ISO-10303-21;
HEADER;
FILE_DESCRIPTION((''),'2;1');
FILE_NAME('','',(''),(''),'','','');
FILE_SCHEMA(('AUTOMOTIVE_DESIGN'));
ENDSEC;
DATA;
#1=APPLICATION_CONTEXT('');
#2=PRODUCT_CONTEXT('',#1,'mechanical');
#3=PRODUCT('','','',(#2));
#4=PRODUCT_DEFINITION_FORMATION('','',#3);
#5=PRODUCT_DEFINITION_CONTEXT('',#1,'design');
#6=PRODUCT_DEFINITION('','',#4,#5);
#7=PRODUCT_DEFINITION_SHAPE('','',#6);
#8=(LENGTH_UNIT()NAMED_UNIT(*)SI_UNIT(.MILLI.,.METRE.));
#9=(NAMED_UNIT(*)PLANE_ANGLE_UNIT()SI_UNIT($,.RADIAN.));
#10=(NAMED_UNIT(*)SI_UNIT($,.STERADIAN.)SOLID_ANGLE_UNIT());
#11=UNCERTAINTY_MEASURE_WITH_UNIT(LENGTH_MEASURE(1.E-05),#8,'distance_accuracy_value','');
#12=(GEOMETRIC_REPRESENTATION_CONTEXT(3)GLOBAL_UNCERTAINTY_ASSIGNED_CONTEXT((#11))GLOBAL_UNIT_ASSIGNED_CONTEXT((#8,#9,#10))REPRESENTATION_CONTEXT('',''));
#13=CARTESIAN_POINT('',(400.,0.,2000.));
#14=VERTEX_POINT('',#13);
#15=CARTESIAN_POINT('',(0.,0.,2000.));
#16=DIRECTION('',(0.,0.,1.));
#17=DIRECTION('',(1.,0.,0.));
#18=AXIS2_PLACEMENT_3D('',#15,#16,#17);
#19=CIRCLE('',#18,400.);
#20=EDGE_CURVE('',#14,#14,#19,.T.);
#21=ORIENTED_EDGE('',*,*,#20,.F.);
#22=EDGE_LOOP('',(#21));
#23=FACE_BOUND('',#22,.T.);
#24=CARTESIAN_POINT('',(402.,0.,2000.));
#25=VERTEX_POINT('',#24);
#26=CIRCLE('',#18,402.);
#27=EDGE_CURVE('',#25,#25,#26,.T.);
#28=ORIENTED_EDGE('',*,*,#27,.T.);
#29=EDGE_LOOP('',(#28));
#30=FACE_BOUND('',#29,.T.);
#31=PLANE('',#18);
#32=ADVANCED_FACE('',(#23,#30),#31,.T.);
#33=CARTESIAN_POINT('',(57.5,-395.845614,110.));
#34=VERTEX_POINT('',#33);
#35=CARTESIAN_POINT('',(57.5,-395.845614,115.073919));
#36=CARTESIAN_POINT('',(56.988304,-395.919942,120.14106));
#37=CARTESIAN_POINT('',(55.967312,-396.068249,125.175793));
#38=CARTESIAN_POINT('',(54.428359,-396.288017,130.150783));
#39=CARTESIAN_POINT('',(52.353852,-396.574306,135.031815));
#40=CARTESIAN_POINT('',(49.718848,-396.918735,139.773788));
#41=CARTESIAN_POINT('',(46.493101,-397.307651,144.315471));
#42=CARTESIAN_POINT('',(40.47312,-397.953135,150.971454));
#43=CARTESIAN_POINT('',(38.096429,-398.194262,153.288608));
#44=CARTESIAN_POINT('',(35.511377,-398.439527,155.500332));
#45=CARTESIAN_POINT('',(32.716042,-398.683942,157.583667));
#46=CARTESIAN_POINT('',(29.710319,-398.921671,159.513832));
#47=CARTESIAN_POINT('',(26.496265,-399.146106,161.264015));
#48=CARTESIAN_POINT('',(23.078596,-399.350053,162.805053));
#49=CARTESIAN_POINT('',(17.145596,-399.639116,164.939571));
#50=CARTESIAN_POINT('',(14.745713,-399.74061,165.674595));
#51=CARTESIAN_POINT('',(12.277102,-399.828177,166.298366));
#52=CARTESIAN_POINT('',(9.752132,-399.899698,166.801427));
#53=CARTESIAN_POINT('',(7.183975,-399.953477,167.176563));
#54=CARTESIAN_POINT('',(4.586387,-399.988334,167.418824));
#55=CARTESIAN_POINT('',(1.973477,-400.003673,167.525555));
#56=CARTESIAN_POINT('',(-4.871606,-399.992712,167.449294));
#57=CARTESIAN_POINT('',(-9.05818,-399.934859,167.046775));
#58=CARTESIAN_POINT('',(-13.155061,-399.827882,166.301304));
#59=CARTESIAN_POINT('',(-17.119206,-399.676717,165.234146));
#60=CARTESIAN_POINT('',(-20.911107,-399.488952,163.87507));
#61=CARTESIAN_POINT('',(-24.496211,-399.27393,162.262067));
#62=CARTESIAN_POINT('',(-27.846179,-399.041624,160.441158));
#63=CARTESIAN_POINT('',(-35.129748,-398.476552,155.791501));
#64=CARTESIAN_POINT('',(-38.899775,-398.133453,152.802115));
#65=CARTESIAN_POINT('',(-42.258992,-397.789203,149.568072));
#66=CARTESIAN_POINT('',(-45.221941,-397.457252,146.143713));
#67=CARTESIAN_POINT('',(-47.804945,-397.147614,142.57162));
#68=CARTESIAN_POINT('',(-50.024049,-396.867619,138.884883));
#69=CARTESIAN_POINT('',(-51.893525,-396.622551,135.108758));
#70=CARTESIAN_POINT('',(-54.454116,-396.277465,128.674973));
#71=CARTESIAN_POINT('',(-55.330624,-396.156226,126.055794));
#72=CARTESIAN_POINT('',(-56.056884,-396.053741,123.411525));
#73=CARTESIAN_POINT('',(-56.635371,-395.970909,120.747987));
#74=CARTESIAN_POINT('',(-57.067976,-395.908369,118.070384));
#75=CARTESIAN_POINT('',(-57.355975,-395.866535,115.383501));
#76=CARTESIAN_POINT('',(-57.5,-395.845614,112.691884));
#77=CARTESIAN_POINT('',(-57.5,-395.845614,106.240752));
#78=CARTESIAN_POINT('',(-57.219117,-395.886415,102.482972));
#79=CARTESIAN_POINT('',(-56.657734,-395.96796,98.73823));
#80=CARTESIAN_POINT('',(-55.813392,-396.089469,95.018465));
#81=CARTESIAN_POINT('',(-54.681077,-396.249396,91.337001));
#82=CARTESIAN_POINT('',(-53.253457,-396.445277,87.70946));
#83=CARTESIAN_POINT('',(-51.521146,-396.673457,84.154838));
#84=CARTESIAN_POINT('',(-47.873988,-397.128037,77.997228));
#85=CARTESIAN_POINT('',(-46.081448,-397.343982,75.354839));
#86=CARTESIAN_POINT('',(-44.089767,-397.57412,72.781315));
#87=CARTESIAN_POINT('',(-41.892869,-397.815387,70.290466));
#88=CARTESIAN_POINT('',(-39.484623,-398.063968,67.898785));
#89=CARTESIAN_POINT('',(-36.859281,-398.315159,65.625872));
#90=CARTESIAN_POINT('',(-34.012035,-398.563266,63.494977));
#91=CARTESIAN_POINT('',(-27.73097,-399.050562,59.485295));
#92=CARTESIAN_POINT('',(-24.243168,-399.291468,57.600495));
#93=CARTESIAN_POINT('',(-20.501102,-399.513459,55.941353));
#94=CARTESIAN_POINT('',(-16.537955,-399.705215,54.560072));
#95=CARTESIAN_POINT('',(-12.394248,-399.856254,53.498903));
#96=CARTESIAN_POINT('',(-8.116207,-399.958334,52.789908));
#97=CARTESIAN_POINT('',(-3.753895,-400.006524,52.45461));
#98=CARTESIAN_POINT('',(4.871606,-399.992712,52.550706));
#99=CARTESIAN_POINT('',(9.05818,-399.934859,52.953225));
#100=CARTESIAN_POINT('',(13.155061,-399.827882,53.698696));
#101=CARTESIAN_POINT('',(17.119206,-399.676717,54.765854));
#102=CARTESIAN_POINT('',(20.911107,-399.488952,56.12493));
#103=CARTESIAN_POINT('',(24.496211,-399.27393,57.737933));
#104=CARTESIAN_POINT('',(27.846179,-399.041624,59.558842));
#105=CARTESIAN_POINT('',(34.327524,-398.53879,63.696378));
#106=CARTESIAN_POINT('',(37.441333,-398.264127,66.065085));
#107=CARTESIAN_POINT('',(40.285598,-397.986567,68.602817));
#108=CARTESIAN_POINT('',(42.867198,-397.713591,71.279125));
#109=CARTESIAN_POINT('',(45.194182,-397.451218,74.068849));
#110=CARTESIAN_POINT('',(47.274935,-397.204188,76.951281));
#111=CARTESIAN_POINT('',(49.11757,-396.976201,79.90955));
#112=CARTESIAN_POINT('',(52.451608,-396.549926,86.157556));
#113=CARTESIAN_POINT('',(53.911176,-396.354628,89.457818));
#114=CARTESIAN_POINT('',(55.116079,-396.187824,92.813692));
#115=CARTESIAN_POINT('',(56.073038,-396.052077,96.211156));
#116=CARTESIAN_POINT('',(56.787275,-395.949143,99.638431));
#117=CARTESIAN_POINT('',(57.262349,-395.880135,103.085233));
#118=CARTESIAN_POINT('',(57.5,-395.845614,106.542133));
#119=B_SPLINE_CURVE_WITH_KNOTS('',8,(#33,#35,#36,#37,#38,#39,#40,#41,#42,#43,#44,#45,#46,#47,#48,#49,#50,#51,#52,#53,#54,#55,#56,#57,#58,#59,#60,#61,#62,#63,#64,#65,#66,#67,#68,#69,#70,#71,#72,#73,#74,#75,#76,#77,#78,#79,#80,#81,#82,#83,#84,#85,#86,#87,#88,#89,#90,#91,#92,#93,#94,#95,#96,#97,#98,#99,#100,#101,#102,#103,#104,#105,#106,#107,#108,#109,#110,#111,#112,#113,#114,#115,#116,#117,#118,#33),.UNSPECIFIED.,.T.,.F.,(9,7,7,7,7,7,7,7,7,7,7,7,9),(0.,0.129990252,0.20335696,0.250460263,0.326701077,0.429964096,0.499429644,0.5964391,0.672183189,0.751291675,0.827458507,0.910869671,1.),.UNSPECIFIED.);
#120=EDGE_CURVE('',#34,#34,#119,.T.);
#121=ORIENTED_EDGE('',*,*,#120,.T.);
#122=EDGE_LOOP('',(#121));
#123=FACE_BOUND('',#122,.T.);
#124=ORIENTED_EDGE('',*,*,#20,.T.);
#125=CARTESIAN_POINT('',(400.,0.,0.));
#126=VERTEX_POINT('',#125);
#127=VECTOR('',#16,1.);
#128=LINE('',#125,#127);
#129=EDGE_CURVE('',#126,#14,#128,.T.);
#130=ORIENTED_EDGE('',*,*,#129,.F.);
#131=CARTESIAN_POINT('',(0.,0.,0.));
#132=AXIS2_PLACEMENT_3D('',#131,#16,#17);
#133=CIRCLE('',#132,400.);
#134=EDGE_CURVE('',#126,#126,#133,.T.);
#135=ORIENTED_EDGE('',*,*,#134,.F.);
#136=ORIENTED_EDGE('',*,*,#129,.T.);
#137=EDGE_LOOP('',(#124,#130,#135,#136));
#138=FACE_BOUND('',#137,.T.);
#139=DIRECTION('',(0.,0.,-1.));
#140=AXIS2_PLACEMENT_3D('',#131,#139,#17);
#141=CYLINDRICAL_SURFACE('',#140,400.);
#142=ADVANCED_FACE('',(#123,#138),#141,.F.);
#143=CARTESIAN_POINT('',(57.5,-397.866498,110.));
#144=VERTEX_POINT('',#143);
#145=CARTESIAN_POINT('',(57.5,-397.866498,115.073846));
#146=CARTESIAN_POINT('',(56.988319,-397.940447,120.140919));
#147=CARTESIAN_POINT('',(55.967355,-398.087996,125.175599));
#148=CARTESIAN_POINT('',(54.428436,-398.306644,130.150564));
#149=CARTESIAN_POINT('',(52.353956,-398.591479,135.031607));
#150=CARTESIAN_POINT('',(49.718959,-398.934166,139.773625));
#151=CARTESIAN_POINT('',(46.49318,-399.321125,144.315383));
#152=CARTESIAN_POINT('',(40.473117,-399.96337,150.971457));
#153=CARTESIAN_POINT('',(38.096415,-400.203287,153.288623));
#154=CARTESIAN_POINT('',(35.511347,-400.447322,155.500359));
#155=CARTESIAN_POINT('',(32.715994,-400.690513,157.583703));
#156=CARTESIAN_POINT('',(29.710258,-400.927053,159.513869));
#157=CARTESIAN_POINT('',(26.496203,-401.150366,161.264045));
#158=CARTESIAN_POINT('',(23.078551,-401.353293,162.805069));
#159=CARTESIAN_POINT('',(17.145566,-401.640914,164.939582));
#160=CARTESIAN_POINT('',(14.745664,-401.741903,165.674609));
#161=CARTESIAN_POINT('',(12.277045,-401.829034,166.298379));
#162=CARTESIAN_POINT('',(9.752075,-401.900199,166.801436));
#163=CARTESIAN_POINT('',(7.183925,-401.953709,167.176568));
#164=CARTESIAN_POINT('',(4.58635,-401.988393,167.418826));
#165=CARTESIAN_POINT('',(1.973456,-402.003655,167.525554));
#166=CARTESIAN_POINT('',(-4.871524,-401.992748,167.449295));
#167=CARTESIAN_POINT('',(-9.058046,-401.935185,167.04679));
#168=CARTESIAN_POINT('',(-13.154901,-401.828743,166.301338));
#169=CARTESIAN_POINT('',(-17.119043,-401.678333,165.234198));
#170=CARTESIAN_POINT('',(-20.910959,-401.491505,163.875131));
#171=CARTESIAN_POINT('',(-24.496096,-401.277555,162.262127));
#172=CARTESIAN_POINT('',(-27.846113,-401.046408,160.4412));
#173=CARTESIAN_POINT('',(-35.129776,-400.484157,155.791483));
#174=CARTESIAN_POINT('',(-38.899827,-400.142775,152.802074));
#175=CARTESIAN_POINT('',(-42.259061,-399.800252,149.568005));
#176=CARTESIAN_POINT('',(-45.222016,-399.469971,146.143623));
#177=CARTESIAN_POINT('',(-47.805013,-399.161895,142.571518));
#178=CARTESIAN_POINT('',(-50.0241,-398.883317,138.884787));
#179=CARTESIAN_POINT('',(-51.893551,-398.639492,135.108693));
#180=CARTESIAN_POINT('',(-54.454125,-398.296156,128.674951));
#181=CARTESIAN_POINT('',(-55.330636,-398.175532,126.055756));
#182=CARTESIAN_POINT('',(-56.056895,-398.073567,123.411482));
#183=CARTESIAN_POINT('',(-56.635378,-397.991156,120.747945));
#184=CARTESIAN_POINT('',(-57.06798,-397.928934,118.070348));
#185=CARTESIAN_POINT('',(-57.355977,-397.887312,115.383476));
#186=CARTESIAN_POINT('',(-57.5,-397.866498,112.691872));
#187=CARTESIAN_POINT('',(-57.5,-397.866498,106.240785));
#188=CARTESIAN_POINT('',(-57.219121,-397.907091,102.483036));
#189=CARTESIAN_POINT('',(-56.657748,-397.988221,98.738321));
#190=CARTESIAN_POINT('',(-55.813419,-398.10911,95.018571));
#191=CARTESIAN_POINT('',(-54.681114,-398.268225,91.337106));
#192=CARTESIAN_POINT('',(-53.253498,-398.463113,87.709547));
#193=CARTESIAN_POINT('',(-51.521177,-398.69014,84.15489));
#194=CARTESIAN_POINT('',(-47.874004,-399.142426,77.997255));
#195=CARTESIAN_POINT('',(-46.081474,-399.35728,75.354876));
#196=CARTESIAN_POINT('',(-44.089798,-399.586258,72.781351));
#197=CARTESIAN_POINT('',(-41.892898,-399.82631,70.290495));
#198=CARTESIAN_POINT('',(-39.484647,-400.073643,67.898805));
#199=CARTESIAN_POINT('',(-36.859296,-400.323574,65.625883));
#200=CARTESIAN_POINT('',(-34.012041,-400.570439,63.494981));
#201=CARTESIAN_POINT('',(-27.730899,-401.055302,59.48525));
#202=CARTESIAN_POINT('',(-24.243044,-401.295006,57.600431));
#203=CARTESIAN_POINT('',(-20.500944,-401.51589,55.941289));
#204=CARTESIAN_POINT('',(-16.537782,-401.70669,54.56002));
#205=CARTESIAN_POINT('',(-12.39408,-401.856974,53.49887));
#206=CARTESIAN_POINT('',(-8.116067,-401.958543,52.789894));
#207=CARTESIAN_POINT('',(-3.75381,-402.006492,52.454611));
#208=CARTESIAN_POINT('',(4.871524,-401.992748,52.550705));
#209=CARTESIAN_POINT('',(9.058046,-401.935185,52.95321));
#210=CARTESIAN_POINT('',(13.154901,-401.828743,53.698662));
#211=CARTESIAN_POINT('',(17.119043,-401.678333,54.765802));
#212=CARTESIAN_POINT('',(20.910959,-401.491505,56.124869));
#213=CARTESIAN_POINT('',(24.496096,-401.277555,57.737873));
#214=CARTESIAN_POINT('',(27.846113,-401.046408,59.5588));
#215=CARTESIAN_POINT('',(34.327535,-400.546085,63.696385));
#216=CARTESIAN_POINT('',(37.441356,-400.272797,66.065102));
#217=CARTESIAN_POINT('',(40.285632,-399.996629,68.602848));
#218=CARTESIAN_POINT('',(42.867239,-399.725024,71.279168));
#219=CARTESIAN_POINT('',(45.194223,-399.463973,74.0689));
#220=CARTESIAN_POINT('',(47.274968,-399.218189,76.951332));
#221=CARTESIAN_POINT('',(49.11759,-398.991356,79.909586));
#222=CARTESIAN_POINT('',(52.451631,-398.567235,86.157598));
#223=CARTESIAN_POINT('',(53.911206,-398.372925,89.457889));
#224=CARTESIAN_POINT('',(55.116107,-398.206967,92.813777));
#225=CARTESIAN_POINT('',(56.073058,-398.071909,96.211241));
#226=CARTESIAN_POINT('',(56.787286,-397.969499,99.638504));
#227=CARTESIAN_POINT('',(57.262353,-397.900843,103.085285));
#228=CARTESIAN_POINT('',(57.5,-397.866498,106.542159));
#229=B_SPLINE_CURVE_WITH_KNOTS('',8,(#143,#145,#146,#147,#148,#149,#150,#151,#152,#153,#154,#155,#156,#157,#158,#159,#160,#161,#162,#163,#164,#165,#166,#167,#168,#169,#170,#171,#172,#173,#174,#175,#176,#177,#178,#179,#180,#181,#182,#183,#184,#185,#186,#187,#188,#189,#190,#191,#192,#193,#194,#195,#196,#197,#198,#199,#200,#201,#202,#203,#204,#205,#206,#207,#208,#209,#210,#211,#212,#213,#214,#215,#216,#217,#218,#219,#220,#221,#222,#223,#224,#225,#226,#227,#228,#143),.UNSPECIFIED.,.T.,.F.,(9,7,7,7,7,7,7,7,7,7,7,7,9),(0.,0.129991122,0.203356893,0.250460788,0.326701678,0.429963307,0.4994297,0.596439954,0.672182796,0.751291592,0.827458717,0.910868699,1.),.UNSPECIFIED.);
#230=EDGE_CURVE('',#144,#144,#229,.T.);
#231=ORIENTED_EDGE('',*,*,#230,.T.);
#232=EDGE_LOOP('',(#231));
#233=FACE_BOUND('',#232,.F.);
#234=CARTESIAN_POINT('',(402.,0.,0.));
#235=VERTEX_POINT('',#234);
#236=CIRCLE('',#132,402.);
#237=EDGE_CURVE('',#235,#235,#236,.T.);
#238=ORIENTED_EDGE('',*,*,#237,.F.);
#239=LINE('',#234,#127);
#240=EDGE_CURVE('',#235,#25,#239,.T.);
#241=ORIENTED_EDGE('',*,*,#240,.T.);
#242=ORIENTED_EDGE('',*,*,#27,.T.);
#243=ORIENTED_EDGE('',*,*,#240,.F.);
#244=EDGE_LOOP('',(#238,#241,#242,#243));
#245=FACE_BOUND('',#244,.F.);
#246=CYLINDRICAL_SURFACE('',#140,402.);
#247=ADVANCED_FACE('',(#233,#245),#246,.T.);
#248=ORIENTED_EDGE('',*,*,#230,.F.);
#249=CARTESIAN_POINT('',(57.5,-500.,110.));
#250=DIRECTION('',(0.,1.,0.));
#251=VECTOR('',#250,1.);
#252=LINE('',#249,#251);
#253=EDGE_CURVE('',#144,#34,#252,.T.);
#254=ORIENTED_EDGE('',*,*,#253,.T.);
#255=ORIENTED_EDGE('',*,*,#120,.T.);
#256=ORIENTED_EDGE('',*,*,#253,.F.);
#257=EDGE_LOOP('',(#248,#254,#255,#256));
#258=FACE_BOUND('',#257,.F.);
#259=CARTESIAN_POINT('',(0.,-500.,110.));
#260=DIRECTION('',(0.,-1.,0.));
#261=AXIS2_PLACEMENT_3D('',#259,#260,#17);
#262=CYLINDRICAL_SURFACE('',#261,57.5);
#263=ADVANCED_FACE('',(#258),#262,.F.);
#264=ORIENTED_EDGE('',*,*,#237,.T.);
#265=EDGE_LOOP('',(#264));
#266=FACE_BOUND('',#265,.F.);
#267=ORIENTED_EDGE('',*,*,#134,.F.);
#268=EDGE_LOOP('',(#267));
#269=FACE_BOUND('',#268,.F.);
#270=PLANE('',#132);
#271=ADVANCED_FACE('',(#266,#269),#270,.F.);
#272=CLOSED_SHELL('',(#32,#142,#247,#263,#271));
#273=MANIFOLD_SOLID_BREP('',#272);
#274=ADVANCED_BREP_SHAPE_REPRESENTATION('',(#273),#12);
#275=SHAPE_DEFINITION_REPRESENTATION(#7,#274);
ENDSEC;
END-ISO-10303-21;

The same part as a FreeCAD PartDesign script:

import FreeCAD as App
import Part
import Sketcher

doc = App.newDocument("Part")
body = doc.addObject("PartDesign::Body", "Body")

sketch1 = body.newObject("Sketcher::SketchObject", "Sketch")
sketch1.AttachmentSupport = (doc.getObject("XY_Plane"), [""])
sketch1.MapMode = "FlatFace"
sketch1.addGeometry([
    Part.Circle(App.Vector(0, 0, 0), App.Vector(0, 0, 1), 402),
    Part.Circle(App.Vector(0, 0, 0), App.Vector(0, 0, 1), 400),
], False)
sketch1.addConstraint([
    Sketcher.Constraint("Coincident", 0, 3, -1, 1),
    Sketcher.Constraint("Coincident", 1, 3, -1, 1),
    Sketcher.Constraint("Diameter", 0, 804.0),
    Sketcher.Constraint("Diameter", 1, 800.0),
])
pad1 = body.newObject("PartDesign::Pad", "Pad")
pad1.Profile = sketch1
pad1.Length = 2000

sketch2 = body.newObject("Sketcher::SketchObject", "Sketch001")
sketch2.AttachmentSupport = (doc.getObject("XZ_Plane"), [""])
sketch2.MapMode = "FlatFace"
sketch2.addGeometry(Part.Circle(App.Vector(0, 110, 0), App.Vector(0, 0, 1), 57.5), False)
sketch2.addConstraint([
    Sketcher.Constraint("PointOnObject", 0, 3, -2),
    Sketcher.Constraint("Diameter", 0, 115.0),
    Sketcher.Constraint("DistanceY", -1, 1, 0, 3, 110.0),
])
pad2 = body.newObject("PartDesign::Pad", "Pad001")
pad2.Profile = sketch2
pad2.Length = 500

sketch3 = body.newObject("Sketcher::SketchObject", "Sketch002")
sketch3.AttachmentSupport = (doc.getObject("XZ_Plane"), [""])
sketch3.MapMode = "FlatFace"
sketch3.AttachmentOffset = App.Placement(App.Vector(0, 0, 500), App.Rotation())
sketch3.addGeometry(Part.Circle(App.Vector(0, 110, 0), App.Vector(0, 0, 1), 57.5), False)
sketch3.addConstraint([
    Sketcher.Constraint("PointOnObject", 0, 3, -2),
    Sketcher.Constraint("Diameter", 0, 115.0),
    Sketcher.Constraint("DistanceY", -1, 1, 0, 3, 110.0),
])
pocket1 = body.newObject("PartDesign::Pocket", "Pocket")
pocket1.Profile = sketch3
pocket1.Length = 500

doc.recompute()
